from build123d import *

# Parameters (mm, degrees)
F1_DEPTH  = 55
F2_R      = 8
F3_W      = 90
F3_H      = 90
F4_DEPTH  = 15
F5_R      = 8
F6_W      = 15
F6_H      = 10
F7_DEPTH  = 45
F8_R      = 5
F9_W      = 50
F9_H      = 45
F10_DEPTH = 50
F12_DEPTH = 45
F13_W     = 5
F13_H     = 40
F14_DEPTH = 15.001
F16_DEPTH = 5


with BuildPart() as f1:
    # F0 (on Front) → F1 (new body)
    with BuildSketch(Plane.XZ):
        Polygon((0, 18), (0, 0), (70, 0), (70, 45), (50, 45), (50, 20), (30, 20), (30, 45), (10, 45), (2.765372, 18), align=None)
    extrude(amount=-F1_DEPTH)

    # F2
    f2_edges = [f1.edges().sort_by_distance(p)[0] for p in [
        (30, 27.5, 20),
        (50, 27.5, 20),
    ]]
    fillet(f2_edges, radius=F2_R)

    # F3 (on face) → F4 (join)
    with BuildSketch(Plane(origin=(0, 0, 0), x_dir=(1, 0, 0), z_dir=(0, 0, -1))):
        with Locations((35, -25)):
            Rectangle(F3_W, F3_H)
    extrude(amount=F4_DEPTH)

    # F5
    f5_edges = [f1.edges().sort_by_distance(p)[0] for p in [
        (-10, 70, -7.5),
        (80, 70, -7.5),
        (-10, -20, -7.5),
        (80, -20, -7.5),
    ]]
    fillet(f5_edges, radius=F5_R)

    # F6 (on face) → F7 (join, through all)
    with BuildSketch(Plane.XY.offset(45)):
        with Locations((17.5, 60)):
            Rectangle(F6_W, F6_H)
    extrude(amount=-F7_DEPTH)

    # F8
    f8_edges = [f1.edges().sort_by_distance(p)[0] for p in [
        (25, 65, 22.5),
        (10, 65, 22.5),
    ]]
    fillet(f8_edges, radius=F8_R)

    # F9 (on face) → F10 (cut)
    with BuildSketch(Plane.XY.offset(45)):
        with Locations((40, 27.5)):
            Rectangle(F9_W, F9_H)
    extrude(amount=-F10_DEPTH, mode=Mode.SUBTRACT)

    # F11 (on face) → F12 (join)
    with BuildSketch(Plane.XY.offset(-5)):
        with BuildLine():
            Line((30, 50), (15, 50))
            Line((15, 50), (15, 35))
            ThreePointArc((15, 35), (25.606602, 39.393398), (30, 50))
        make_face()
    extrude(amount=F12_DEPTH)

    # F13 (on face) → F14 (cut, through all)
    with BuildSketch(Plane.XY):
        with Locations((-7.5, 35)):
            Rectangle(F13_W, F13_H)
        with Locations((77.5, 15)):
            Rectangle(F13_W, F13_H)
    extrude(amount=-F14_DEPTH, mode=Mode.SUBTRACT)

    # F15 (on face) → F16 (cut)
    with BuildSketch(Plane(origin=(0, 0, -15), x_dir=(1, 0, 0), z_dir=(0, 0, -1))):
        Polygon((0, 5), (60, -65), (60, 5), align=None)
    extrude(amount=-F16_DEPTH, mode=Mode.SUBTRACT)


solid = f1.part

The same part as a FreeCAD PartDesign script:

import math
import FreeCAD as App
import Part
import Sketcher
Q = App.Units.Quantity


def edges_at(feature, points):
    """Names of the edges that pass closest to the given points."""
    edges = feature.Shape.Edges
    near = lambda p: min(range(len(edges)), key=lambda i: edges[i].distToShape(Part.Vertex(*p))[0])
    return sorted({f"Edge{near(p) + 1}" for p in points})


def add_polygon(sketch, points):
    """Adds a closed chain of lines whose ends are joined by coincident constraints."""
    first, n = sketch.GeometryCount, len(points)
    for a, b in zip(points, points[1:] + points[:1]):
        sketch.addGeometry(Part.LineSegment(App.Vector(*a, 0), App.Vector(*b, 0)), False)
    for i in range(n):
        sketch.addConstraint(Sketcher.Constraint("Coincident", first + i, 2, first + (i + 1) % n, 1))

doc = App.newDocument("Part")
params = doc.addObject("Spreadsheet::Sheet", "Params")
for row, (alias, value) in enumerate([
    ("sketch1_width", "70 mm"),
    ("sketch1_width2", "20 mm"),
    ("sketch1_height", "18 mm"),
    ("sketch1_height2", "45 mm"),
    ("sketch1_height3", "25 mm"),
    ("pad1_length", "55 mm"),
    ("fillet_radius", "8 mm"),
    ("sketch2_width", "90 mm"),
    ("pad2_length", "15 mm"),
    ("fillet2_radius", "8 mm"),
    ("sketch3_width", "15 mm"),
    ("sketch3_height", "10 mm"),
    ("fillet3_radius", "5 mm"),
    ("sketch4_width", "50 mm"),
    ("sketch4_height", "45 mm"),
    ("pocket1_length", "50 mm"),
    ("sketch5_radius", "14.999999 mm"),
    ("pad4_length", "45 mm"),
    ("sketch6_width", "5 mm"),
    ("sketch6_height", "40 mm"),
    ("sketch7_width", "60 mm"),
    ("sketch7_height", "70 mm"),
    ("pocket3_length", "5 mm"),
], start=1):
    params.set(f"A{row}", alias)
    params.set(f"B{row}", "=" + value)
    params.setAlias(f"B{row}", alias)

body = doc.addObject("PartDesign::Body", "Body")

# Sketch on XZ plane
sketch1 = body.newObject("Sketcher::SketchObject", "Sketch")
sketch1.AttachmentSupport = (doc.getObject("XZ_Plane"), [""])
sketch1.MapMode = "FlatFace"
add_polygon(sketch1, [(0, 18), (0, 0), (70, 0), (70, 45), (50, 45), (50, 20), (30, 20), (30, 45), (10, 45), (2.8, 18)])  # lines 0-9
sketch1.addConstraint([
    Sketcher.Constraint("Vertical", 0),
    Sketcher.Constraint("Horizontal", 1),
    Sketcher.Constraint("Vertical", 2),
    Sketcher.Constraint("Horizontal", 3),
    Sketcher.Constraint("Vertical", 4),
    Sketcher.Constraint("Horizontal", 5),
    Sketcher.Constraint("Vertical", 6),
    Sketcher.Constraint("Horizontal", 7),
    Sketcher.Constraint("Horizontal", 9),
    Sketcher.Constraint("Coincident", 0, 2, -1, 1),
    Sketcher.Constraint("Horizontal", 3, 2, 6, 2),
    Sketcher.Constraint("Equal", 3, 5),
    Sketcher.Constraint("Equal", 5, 7),
    Sketcher.Constraint("DistanceX", 1, 1, 1, 2, 70.0),
    Sketcher.Constraint("DistanceX", 3, 2, 3, 1, 20.0),
    Sketcher.Constraint("DistanceY", 0, 2, 0, 1, 18.0),
    Sketcher.Constraint("DistanceY", 2, 1, 2, 2, 45.0),
    Sketcher.Constraint("DistanceY", 4, 2, 4, 1, 25.0),
    Sketcher.Constraint("Angle", 8, Q("-105 deg")),
])
sketch1.setExpression("Constraints[23]", "Params.sketch1_width")
sketch1.setExpression("Constraints[24]", "Params.sketch1_width2")
sketch1.setExpression("Constraints[25]", "Params.sketch1_height")
sketch1.setExpression("Constraints[26]", "Params.sketch1_height2")
sketch1.setExpression("Constraints[27]", "Params.sketch1_height3")
pad1 = body.newObject("PartDesign::Pad", "Pad")
pad1.Profile = sketch1
pad1.setExpression("Length", "Params.pad1_length")
pad1.Reversed = True
doc.recompute()

fillet = body.newObject("PartDesign::Fillet", "Fillet")
fillet.Base = (pad1, edges_at(pad1, [(30, 27.5, 20), (50, 27.5, 20)]))
fillet.setExpression("Radius", "Params.fillet_radius")

# Sketch on XY plane
sketch2 = body.newObject("Sketcher::SketchObject", "Sketch001")
sketch2.AttachmentSupport = (doc.getObject("XY_Plane"), [""])
sketch2.MapMode = "FlatFace"
add_polygon(sketch2, [(-10, -20), (-10, 70), (80, 70), (80, -20)])  # lines 0-3
sketch2.addConstraint([
    Sketcher.Constraint("Vertical", 0),
    Sketcher.Constraint("Horizontal", 1),
    Sketcher.Constraint("Vertical", 2),
    Sketcher.Constraint("Horizontal", 3),
    Sketcher.Constraint("Equal", 3, 0),
    Sketcher.Constraint("DistanceX", 1, 1, 1, 2, 90.0),
    Sketcher.Constraint("DistanceX", 0, 2, -1, 1, 10.0),
    Sketcher.Constraint("DistanceY", -1, 1, 0, 2, 70.0),
])
sketch2.setExpression("Constraints[9]", "Params.sketch2_width")
pad2 = body.newObject("PartDesign::Pad", "Pad001")
pad2.Profile = sketch2
pad2.setExpression("Length", "Params.pad2_length")
pad2.Reversed = True
doc.recompute()

fillet2 = body.newObject("PartDesign::Fillet", "Fillet001")
fillet2.Base = (pad2, edges_at(pad2, [
    (-10, 70, -7.5),
    (80, 70, -7.5),
    (-10, -20, -7.5),
    (80, -20, -7.5),
]))
fillet2.setExpression("Radius", "Params.fillet2_radius")

# Sketch on XY plane
sketch3 = body.newObject("Sketcher::SketchObject", "Sketch002")
sketch3.AttachmentSupport = (doc.getObject("XY_Plane"), [""])
sketch3.MapMode = "FlatFace"
sketch3.AttachmentOffset = App.Placement(App.Vector(0, 0, 45), App.Rotation())
add_polygon(sketch3, [(10, 65), (10, 55), (25, 55), (25, 65)])  # lines 0-3
sketch3.addConstraint([
    Sketcher.Constraint("Vertical", 0),
    Sketcher.Constraint("Horizontal", 1),
    Sketcher.Constraint("Vertical", 2),
    Sketcher.Constraint("Horizontal", 3),
    Sketcher.Constraint("DistanceX", 1, 1, 1, 2, 15.0),
    Sketcher.Constraint("DistanceY", 0, 2, 0, 1, 10.0),
    Sketcher.Constraint("DistanceX", -1, 1, 0, 2, 10.0),
    Sketcher.Constraint("DistanceY", -1, 1, 0, 2, 55.0),
])
sketch3.setExpression("Constraints[8]", "Params.sketch3_width")
sketch3.setExpression("Constraints[9]", "Params.sketch3_height")
pad3 = body.newObject("PartDesign::Pad", "Pad002")
pad3.Profile = sketch3
pad3.Type = "UpToLast"
pad3.Reversed = True
doc.recompute()

fillet3 = body.newObject("PartDesign::Fillet", "Fillet002")
fillet3.Base = (pad3, edges_at(pad3, [(25, 65, 22.5), (10, 65, 22.5)]))
fillet3.setExpression("Radius", "Params.fillet3_radius")

# Sketch on XY plane
sketch4 = body.newObject("Sketcher::SketchObject", "Sketch003")
sketch4.AttachmentSupport = (doc.getObject("XY_Plane"), [""])
sketch4.MapMode = "FlatFace"
sketch4.AttachmentOffset = App.Placement(App.Vector(0, 0, 45), App.Rotation())
add_polygon(sketch4, [(15, 50), (15, 5), (65, 5), (65, 50)])  # lines 0-3
sketch4.addConstraint([
    Sketcher.Constraint("Vertical", 0),
    Sketcher.Constraint("Horizontal", 1),
    Sketcher.Constraint("Vertical", 2),
    Sketcher.Constraint("Horizontal", 3),
    Sketcher.Constraint("DistanceX", 1, 1, 1, 2, 50.0),
    Sketcher.Constraint("DistanceY", 0, 2, 0, 1, 45.0),
    Sketcher.Constraint("DistanceX", -1, 1, 0, 2, 15.0),
    Sketcher.Constraint("DistanceY", -1, 1, 0, 2, 5.0),
])
sketch4.setExpression("Constraints[8]", "Params.sketch4_width")
sketch4.setExpression("Constraints[9]", "Params.sketch4_height")
pocket1 = body.newObject("PartDesign::Pocket", "Pocket")
pocket1.Profile = sketch4
pocket1.setExpression("Length", "Params.pocket1_length")

# Sketch on XY plane
sketch5 = body.newObject("Sketcher::SketchObject", "Sketch004")
sketch5.AttachmentSupport = (doc.getObject("XY_Plane"), [""])
sketch5.MapMode = "FlatFace"
sketch5.AttachmentOffset = App.Placement(App.Vector(0, 0, -5), App.Rotation())
sketch5.addGeometry([
    Part.LineSegment(App.Vector(30, 50, 0), App.Vector(15, 50, 0)),
    Part.LineSegment(App.Vector(15, 50, 0), App.Vector(15, 35, 0)),
    Part.ArcOfCircle(Part.Circle(App.Vector(15, 50, 0), App.Vector(0, 0, 1), 15), math.radians(-90), math.radians(0)),
], False)
sketch5.addConstraint([
    Sketcher.Constraint("Coincident", 0, 2, 1, 1),
    Sketcher.Constraint("Coincident", 1, 2, 2, 1),
    Sketcher.Constraint("Coincident", 2, 2, 0, 1),
    Sketcher.Constraint("Horizontal", 0),
    Sketcher.Constraint("Vertical", 1),
    Sketcher.Constraint("Coincident", 0, 2, 2, 3),
    Sketcher.Constraint("Radius", 2, 14.999999),
    Sketcher.Constraint("DistanceX", -1, 1, 2, 3, 15.000001),
    Sketcher.Constraint("DistanceY", -1, 1, 2, 3, 49.999999),
])
sketch5.setExpression("Constraints[6]", "Params.sketch5_radius")
pad4 = body.newObject("PartDesign::Pad", "Pad003")
pad4.Profile = sketch5
pad4.setExpression("Length", "Params.pad4_length")

# Sketch on XY plane
sketch6 = body.newObject("Sketcher::SketchObject", "Sketch005")
sketch6.AttachmentSupport = (doc.getObject("XY_Plane"), [""])
sketch6.MapMode = "FlatFace"
add_polygon(sketch6, [(-10, 55), (-10, 15), (-5, 15), (-5, 55)])  # lines 0-3
add_polygon(sketch6, [(75, 35), (75, -5), (80, -5), (80, 35)])  # lines 4-7
sketch6.addConstraint([
    Sketcher.Constraint("Vertical", 0),
    Sketcher.Constraint("Horizontal", 1),
    Sketcher.Constraint("Vertical", 2),
    Sketcher.Constraint("Horizontal", 3),
    Sketcher.Constraint("Vertical", 4),
    Sketcher.Constraint("Horizontal", 5),
    Sketcher.Constraint("Vertical", 6),
    Sketcher.Constraint("Horizontal", 7),
    Sketcher.Constraint("Equal", 3, 5),
    Sketcher.Constraint("Equal", 2, 4),
    Sketcher.Constraint("DistanceX", 1, 1, 1, 2, 5.0),
    Sketcher.Constraint("DistanceY", 0, 2, 0, 1, 40.0),
    Sketcher.Constraint("DistanceX", 0, 2, -1, 1, 10.0),
    Sketcher.Constraint("DistanceY", -1, 1, 0, 2, 15.0),
    Sketcher.Constraint("DistanceX", -1, 1, 4, 2, 75.0),
    Sketcher.Constraint("DistanceY", 4, 2, -1, 1, 5.0),
])
sketch6.setExpression("Constraints[18]", "Params.sketch6_width")
sketch6.setExpression("Constraints[19]", "Params.sketch6_height")
pocket2 = body.newObject("PartDesign::Pocket", "Pocket001")
pocket2.Profile = sketch6
pocket2.Type = "ThroughAll"

# Sketch on XY plane
sketch7 = body.newObject("Sketcher::SketchObject", "Sketch006")
sketch7.AttachmentSupport = (doc.getObject("XY_Plane"), [""])
sketch7.MapMode = "FlatFace"
sketch7.AttachmentOffset = App.Placement(App.Vector(0, 0, -15), App.Rotation())
add_polygon(sketch7, [(0, -5), (60, 65), (60, -5)])  # lines 0-2
sketch7.addConstraint([
    Sketcher.Constraint("Vertical", 1),
    Sketcher.Constraint("Horizontal", 2),
    Sketcher.Constraint("PointOnObject", 2, 2, -2),
    Sketcher.Constraint("DistanceX", 2, 2, 2, 1, 60.0),
    Sketcher.Constraint("DistanceY", 1, 2, 1, 1, 70.0),
    Sketcher.Constraint("DistanceY", -1, 1, 0, 2, 65.0),
])
sketch7.setExpression("Constraints[6]", "Params.sketch7_width")
sketch7.setExpression("Constraints[7]", "Params.sketch7_height")
pocket3 = body.newObject("PartDesign::Pocket", "Pocket002")
pocket3.Profile = sketch7
pocket3.setExpression("Length", "Params.pocket3_length")
pocket3.Reversed = True

doc.recompute()
